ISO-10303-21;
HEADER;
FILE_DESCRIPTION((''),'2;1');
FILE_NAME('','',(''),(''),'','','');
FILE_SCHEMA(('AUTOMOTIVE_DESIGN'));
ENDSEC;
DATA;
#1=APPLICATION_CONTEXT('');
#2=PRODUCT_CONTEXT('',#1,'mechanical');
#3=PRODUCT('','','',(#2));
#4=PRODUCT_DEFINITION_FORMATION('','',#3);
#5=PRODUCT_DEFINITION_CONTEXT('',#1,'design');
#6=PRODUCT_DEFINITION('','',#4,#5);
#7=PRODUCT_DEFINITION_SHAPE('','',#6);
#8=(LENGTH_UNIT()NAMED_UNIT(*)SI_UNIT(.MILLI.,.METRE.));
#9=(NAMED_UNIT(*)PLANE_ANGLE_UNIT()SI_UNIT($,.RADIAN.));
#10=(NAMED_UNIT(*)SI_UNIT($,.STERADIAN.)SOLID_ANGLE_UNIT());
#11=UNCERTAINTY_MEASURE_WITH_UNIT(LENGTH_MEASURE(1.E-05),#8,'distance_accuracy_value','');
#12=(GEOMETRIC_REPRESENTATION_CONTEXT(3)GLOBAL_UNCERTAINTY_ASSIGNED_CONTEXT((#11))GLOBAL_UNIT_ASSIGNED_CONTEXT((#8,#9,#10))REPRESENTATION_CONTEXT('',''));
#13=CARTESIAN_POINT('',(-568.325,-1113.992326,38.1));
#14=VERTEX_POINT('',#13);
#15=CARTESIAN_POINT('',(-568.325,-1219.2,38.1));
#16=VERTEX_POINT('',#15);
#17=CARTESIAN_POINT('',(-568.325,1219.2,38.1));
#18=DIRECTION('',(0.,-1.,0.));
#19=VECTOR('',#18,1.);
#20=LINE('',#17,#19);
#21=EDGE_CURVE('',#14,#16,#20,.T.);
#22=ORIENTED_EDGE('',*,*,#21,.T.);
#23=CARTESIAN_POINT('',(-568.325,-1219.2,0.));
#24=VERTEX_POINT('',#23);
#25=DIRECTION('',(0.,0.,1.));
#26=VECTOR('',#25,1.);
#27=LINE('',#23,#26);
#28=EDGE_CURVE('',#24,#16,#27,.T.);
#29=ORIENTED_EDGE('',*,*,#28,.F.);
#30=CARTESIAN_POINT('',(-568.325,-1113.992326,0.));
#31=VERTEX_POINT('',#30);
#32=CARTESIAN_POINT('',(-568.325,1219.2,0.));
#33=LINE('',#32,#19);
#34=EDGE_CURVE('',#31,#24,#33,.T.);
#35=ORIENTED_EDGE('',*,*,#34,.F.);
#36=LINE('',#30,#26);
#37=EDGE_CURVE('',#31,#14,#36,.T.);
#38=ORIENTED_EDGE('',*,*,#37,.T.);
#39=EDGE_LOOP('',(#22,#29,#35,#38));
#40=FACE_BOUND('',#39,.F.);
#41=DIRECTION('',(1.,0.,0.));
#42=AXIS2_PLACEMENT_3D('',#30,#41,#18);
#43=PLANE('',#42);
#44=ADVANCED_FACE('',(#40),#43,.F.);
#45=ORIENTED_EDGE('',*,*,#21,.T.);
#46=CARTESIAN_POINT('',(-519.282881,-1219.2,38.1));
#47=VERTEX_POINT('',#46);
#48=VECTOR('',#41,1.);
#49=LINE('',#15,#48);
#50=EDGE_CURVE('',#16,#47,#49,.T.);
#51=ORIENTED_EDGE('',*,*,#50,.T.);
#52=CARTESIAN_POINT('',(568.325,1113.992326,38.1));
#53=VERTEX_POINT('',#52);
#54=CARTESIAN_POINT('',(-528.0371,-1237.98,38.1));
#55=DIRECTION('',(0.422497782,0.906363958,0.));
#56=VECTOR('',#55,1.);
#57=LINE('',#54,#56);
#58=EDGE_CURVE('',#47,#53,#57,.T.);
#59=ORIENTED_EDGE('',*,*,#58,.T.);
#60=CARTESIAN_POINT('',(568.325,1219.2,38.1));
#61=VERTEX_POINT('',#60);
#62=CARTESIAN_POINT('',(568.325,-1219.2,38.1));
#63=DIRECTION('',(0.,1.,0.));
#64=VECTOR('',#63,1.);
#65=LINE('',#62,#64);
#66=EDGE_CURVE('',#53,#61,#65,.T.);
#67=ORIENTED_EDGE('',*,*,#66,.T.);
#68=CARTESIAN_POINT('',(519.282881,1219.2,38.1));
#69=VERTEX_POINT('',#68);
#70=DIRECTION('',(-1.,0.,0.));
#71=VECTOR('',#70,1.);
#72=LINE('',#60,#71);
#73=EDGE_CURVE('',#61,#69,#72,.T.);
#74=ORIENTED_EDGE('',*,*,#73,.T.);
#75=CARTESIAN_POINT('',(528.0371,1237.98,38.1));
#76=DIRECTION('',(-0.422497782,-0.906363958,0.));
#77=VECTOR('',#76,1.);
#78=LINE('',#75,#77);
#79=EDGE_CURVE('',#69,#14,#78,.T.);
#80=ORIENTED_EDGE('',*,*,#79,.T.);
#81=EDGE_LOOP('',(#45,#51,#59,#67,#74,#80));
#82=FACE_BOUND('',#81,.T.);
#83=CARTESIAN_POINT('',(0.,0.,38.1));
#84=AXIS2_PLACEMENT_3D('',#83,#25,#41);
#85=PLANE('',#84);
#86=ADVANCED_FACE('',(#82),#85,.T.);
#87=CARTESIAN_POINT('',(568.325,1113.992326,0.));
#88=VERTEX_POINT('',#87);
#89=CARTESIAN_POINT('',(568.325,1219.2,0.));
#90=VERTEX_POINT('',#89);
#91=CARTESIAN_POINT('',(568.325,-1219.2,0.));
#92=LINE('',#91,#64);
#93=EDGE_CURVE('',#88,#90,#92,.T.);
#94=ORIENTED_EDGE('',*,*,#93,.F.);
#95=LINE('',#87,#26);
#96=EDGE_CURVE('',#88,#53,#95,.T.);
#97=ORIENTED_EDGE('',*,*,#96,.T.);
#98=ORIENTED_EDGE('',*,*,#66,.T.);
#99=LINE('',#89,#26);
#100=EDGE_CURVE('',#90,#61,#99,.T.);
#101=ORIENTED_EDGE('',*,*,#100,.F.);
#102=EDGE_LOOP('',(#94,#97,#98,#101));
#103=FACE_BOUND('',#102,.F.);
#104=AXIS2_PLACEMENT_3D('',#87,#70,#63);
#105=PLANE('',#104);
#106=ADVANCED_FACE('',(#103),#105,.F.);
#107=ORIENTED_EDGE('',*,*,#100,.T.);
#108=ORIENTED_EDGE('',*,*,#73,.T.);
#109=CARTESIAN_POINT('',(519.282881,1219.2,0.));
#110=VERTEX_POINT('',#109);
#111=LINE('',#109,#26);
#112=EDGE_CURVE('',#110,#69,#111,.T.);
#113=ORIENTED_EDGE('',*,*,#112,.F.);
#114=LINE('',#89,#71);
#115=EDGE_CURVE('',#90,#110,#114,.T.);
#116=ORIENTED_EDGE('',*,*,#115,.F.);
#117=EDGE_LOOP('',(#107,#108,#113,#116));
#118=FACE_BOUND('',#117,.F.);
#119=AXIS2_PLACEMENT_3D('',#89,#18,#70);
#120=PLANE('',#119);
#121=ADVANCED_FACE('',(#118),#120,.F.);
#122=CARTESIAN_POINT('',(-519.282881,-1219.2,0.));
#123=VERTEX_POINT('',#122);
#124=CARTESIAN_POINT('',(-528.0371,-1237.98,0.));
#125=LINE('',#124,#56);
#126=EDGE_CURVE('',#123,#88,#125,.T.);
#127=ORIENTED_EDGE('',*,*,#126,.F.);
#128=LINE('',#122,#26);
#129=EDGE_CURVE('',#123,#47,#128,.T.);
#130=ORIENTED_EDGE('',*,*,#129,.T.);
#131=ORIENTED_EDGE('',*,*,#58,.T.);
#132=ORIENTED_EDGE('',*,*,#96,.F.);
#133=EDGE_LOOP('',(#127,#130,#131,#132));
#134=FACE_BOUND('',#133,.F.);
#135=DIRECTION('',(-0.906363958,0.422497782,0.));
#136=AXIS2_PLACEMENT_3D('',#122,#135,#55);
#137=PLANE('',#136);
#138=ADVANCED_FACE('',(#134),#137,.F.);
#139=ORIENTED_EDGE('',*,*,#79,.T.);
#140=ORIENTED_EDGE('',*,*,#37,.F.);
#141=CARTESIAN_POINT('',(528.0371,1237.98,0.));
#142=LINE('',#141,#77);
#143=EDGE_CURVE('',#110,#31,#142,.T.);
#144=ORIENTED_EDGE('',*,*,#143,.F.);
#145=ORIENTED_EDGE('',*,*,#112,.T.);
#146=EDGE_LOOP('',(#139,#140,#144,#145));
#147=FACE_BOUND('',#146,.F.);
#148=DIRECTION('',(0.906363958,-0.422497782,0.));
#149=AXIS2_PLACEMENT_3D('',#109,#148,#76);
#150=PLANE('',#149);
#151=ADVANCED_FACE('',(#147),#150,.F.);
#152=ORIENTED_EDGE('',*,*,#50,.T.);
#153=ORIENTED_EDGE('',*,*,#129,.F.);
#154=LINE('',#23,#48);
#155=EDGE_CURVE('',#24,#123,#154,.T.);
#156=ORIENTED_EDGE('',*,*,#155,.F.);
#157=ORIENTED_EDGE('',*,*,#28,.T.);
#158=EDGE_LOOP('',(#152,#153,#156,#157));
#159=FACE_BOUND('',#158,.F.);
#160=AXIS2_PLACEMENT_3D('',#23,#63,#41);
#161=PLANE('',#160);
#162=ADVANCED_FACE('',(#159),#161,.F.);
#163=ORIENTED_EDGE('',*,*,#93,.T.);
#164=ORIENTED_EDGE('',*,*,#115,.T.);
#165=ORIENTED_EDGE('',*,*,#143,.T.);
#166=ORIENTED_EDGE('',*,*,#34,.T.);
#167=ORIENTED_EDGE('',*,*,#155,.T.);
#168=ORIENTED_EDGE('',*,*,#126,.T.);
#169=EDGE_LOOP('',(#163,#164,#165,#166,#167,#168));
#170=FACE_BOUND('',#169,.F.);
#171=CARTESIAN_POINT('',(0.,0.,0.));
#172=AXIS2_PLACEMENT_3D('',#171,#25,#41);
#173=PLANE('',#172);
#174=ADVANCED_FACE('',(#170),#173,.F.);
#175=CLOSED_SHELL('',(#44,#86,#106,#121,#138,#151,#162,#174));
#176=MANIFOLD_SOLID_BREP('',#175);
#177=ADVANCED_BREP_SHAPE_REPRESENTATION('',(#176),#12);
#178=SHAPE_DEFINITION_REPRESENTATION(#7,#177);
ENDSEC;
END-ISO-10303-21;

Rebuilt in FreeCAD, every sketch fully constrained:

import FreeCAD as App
import Part
import Sketcher
Q = App.Units.Quantity


def add_polygon(sketch, points):
    """Adds a closed chain of lines whose ends are joined by coincident constraints."""
    first, n = sketch.GeometryCount, len(points)
    for a, b in zip(points, points[1:] + points[:1]):
        sketch.addGeometry(Part.LineSegment(App.Vector(*a, 0), App.Vector(*b, 0)), False)
    for i in range(n):
        sketch.addConstraint(Sketcher.Constraint("Coincident", first + i, 2, first + (i + 1) % n, 1))

doc = App.newDocument("Part")
params = doc.addObject("Spreadsheet::Sheet", "Params")
for row, (alias, value) in enumerate([
    ("pad1_length", "1.5 in"),
], start=1):
    params.set(f"A{row}", alias)
    params.set(f"B{row}", "=" + value)
    params.setAlias(f"B{row}", alias)

body = doc.addObject("PartDesign::Body", "Body")

# Sketch on XY plane
sketch1 = doc.addObject("Sketcher::SketchObject", "Sketch")
body.addObject(sketch1)
sketch1.AttachmentSupport = (doc.XY_Plane, [""])
sketch1.MapMode = "FlatFace"
add_polygon(sketch1, [(568.325, 1113.992326), (568.325, 1219.2), (519.282881, 1219.2), (-568.325, -1113.992326), (-568.325, -1219.2), (-519.282881, -1219.2)])  # lines 0-5
sketch1.addConstraint([
    Sketcher.Constraint("Vertical", 0),
    Sketcher.Constraint("Horizontal", 1),
    Sketcher.Constraint("Vertical", 3),
    Sketcher.Constraint("Horizontal", 4),
    Sketcher.Constraint("Symmetric", 0, 2, 3, 2, -1, 1),
    Sketcher.Constraint("Parallel", 2, 5),
    Sketcher.Constraint("Equal", 1, 4),
    Sketcher.Constraint("DistanceY", 3, 2, 1, 2, Q("96 in")),
    Sketcher.Constraint("DistanceX", 2, 2, 0, 2, Q("44.75 in")),
    Sketcher.Constraint("DistanceX", 1, 2, 1, 1, Q("1.9308 in")),
    Sketcher.Constraint("DistanceY", 0, 1, 0, 2, Q("105.2077 mm")),
])
pad1 = doc.addObject("PartDesign::Pad", "Pad")
body.addObject(pad1)
pad1.Profile = sketch1
pad1.setExpression("Length", "Params.pad1_length")

doc.recompute()
